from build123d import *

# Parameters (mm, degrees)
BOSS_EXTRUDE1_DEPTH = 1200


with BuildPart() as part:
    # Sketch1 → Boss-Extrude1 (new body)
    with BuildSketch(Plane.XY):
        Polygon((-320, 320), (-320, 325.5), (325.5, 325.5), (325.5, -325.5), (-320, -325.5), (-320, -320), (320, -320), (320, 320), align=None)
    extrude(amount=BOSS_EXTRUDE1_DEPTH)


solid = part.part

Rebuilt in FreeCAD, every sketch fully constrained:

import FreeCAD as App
import Part
import Sketcher

V = App.Vector


def add_polygon(sketch, points):
    """Adds a closed chain of lines whose ends are joined by coincident constraints."""
    first, n = sketch.GeometryCount, len(points)
    for a, b in zip(points, points[1:] + points[:1]):
        sketch.addGeometry(Part.LineSegment(App.Vector(*a, 0), App.Vector(*b, 0)), False)
    for i in range(n):
        sketch.addConstraint(Sketcher.Constraint("Coincident", first + i, 2, first + (i + 1) % n, 1))

doc = App.newDocument("Part")
body = doc.addObject("PartDesign::Body", "Body")

sketch1 = doc.addObject("Sketcher::SketchObject", "Sketch")
body.addObject(sketch1)
sketch1.AttachmentSupport = (doc.XY_Plane, [""])
sketch1.MapMode = "FlatFace"
add_polygon(sketch1, [(-320, 326), (-320, 320), (320, 320), (320, -320), (-320, -320), (-320, -326), (326, -326), (326, 326)])
sketch1.addConstraint([
    Sketcher.Constraint("Vertical", 0),
    Sketcher.Constraint("Horizontal", 1),
    Sketcher.Constraint("Vertical", 2),
    Sketcher.Constraint("Horizontal", 3),
    Sketcher.Constraint("Vertical", 4),
    Sketcher.Constraint("Horizontal", 5),
    Sketcher.Constraint("Vertical", 6),
    Sketcher.Constraint("Horizontal", 7),
    Sketcher.Constraint("Symmetric", 0, 2, 2, 2, -1, 1),
    Sketcher.Constraint("Symmetric", 4, 2, 7, 2, -1),
    Sketcher.Constraint("Equal", 3, 2),
    Sketcher.Constraint("DistanceX", 1, 1, 1, 2, 640.0),
    Sketcher.Constraint("DistanceY", 6, 1, 6, 2, 651.0),
    Sketcher.Constraint("DistanceX", 5, 1, 5, 2, 645.5),
])
pad1 = doc.addObject("PartDesign::Pad", "Pad")
body.addObject(pad1)
pad1.Profile = sketch1
pad1.Length = 1200

doc.recompute()
